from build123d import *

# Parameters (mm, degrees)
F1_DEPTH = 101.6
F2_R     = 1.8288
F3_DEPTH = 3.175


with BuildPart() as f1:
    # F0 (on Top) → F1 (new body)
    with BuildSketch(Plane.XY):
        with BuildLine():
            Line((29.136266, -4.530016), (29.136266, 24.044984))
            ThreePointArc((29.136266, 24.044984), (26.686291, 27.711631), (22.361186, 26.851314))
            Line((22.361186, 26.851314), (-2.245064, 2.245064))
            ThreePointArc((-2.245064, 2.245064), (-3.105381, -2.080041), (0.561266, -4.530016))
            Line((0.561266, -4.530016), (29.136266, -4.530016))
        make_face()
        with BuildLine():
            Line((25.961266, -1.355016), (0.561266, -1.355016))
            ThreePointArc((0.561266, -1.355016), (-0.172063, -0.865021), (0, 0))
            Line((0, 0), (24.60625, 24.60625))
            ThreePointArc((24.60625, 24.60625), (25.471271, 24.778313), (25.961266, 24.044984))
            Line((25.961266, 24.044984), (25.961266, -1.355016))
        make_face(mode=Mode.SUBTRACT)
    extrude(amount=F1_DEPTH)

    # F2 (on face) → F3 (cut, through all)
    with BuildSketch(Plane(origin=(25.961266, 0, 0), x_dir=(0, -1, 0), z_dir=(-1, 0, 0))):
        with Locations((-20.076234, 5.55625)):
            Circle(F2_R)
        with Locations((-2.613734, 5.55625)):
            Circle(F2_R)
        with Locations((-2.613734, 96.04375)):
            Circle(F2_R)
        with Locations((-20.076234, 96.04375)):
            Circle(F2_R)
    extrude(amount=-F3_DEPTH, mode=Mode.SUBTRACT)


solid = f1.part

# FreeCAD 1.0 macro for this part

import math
import FreeCAD as App
import Part
import Sketcher
from FreeCAD import Vector
Q = App.Units.Quantity

doc = App.newDocument("Part")
body = doc.addObject("PartDesign::Body", "Body")

sketch1 = body.newObject("Sketcher::SketchObject", "Sketch")
sketch1.AttachmentSupport = (doc.getObject("XY_Plane"), [""])
sketch1.MapMode = "FlatFace"
sketch1.addGeometry([
    Part.LineSegment(Vector(29.1, -4.5, 0), Vector(29.1, 24, 0)),
    Part.ArcOfCircle(Part.Circle(Vector(25.2, 24, 0), Vector(0, 0, 1), 4), math.radians(0), math.radians(135)),
    Part.LineSegment(Vector(22.4, 26.9, 0), Vector(-2.2, 2.2, 0)),
    Part.ArcOfCircle(Part.Circle(Vector(0.6, -0.6, 0), Vector(0, 0, 1), 4), math.radians(135), math.radians(270)),
    Part.LineSegment(Vector(0.6, -4.5, 0), Vector(29.1, -4.5, 0)),
    Part.LineSegment(Vector(26, 24, 0), Vector(26, -1.4, 0)),
    Part.LineSegment(Vector(26, -1.4, 0), Vector(0.6, -1.4, 0)),
    Part.ArcOfCircle(Part.Circle(Vector(0.6, -0.6, 0), Vector(0, 0, 1), 0.8), math.radians(135), math.radians(270)),
    Part.LineSegment(Vector(0, 0, 0), Vector(24.6, 24.6, 0)),
    Part.ArcOfCircle(Part.Circle(Vector(25.2, 24, 0), Vector(0, 0, 1), 0.8), math.radians(0), math.radians(135)),
], False)
sketch1.addConstraint([
    Sketcher.Constraint("Tangent", 0, 2, 1, 1),
    Sketcher.Constraint("Tangent", 1, 2, 2, 1),
    Sketcher.Constraint("Tangent", 2, 2, 3, 1),
    Sketcher.Constraint("Tangent", 3, 2, 4, 1),
    Sketcher.Constraint("Coincident", 4, 2, 0, 1),
    Sketcher.Constraint("Coincident", 5, 2, 6, 1),
    Sketcher.Constraint("Tangent", 6, 2, 7, 2),
    Sketcher.Constraint("Tangent", 7, 1, 8, 1),
    Sketcher.Constraint("Tangent", 8, 2, 9, 2),
    Sketcher.Constraint("Tangent", 9, 1, 5, 1),
    Sketcher.Constraint("Vertical", 0),
    Sketcher.Constraint("Horizontal", 4),
    Sketcher.Constraint("Vertical", 5),
    Sketcher.Constraint("Horizontal", 6),
    Sketcher.Constraint("Coincident", 7, 1, -1, 1),
    Sketcher.Constraint("Coincident", 7, 3, 3, 3),
    Sketcher.Constraint("Coincident", 9, 3, 1, 3),
    Sketcher.Constraint("Equal", 1, 3),
    Sketcher.Constraint("Equal", 7, 9),
    Sketcher.Constraint("Equal", 4, 0),
    Sketcher.Constraint("DistanceX", 6, 2, 6, 1, Q("1 in")),
    Sketcher.Constraint("Radius", 1, Q("0.15625 in")),
    Sketcher.Constraint("Radius", 7, Q("0.03125 in")),
])
pad1 = body.newObject("PartDesign::Pad", "Pad")
pad1.Profile = sketch1
pad1.Length = Q("4 in")

sketch2 = body.newObject("Sketcher::SketchObject", "Sketch001")
sketch2.AttachmentSupport = (doc.getObject("YZ_Plane"), [""])
sketch2.MapMode = "FlatFace"
sketch2.AttachmentOffset = App.Placement(Vector(0, 0, 25.961266), App.Rotation())
sketch2.addGeometry([
    Part.Circle(Vector(20.1, 5.6, 0), Vector(0, 0, 1), 1.8),
    Part.Circle(Vector(2.6, 5.6, 0), Vector(0, 0, 1), 1.8),
    Part.Circle(Vector(2.6, 96, 0), Vector(0, 0, 1), 1.8),
    Part.Circle(Vector(20.1, 96, 0), Vector(0, 0, 1), 1.8),
], False)
sketch2.addConstraint([
    Sketcher.Constraint("Equal", 0, 1),
    Sketcher.Constraint("Equal", 1, 2),
    Sketcher.Constraint("Equal", 2, 3),
    Sketcher.Constraint("Horizontal", 0, 3, 1, 3),
    Sketcher.Constraint("Horizontal", 2, 3, 3, 3),
    Sketcher.Constraint("Vertical", 1, 3, 2, 3),
    Sketcher.Constraint("Vertical", 0, 3, 3, 3),
    Sketcher.Constraint("Diameter", 0, Q("0.144 in")),
    Sketcher.Constraint("DistanceY", -1, 1, 0, 3, Q("0.21875 in")),
    Sketcher.Constraint("DistanceY", -1, 1, 2, 3, Q("3.78125 in")),
    Sketcher.Constraint("DistanceX", 1, 3, 0, 3, Q("0.6875 in")),
    Sketcher.Constraint("DistanceX", -1, 1, 0, 3, Q("20.076234 mm")),
])
pocket1 = body.newObject("PartDesign::Pocket", "Pocket")
pocket1.Profile = sketch2
pocket1.Type = "ThroughAll"
pocket1.Reversed = True

doc.recompute()
